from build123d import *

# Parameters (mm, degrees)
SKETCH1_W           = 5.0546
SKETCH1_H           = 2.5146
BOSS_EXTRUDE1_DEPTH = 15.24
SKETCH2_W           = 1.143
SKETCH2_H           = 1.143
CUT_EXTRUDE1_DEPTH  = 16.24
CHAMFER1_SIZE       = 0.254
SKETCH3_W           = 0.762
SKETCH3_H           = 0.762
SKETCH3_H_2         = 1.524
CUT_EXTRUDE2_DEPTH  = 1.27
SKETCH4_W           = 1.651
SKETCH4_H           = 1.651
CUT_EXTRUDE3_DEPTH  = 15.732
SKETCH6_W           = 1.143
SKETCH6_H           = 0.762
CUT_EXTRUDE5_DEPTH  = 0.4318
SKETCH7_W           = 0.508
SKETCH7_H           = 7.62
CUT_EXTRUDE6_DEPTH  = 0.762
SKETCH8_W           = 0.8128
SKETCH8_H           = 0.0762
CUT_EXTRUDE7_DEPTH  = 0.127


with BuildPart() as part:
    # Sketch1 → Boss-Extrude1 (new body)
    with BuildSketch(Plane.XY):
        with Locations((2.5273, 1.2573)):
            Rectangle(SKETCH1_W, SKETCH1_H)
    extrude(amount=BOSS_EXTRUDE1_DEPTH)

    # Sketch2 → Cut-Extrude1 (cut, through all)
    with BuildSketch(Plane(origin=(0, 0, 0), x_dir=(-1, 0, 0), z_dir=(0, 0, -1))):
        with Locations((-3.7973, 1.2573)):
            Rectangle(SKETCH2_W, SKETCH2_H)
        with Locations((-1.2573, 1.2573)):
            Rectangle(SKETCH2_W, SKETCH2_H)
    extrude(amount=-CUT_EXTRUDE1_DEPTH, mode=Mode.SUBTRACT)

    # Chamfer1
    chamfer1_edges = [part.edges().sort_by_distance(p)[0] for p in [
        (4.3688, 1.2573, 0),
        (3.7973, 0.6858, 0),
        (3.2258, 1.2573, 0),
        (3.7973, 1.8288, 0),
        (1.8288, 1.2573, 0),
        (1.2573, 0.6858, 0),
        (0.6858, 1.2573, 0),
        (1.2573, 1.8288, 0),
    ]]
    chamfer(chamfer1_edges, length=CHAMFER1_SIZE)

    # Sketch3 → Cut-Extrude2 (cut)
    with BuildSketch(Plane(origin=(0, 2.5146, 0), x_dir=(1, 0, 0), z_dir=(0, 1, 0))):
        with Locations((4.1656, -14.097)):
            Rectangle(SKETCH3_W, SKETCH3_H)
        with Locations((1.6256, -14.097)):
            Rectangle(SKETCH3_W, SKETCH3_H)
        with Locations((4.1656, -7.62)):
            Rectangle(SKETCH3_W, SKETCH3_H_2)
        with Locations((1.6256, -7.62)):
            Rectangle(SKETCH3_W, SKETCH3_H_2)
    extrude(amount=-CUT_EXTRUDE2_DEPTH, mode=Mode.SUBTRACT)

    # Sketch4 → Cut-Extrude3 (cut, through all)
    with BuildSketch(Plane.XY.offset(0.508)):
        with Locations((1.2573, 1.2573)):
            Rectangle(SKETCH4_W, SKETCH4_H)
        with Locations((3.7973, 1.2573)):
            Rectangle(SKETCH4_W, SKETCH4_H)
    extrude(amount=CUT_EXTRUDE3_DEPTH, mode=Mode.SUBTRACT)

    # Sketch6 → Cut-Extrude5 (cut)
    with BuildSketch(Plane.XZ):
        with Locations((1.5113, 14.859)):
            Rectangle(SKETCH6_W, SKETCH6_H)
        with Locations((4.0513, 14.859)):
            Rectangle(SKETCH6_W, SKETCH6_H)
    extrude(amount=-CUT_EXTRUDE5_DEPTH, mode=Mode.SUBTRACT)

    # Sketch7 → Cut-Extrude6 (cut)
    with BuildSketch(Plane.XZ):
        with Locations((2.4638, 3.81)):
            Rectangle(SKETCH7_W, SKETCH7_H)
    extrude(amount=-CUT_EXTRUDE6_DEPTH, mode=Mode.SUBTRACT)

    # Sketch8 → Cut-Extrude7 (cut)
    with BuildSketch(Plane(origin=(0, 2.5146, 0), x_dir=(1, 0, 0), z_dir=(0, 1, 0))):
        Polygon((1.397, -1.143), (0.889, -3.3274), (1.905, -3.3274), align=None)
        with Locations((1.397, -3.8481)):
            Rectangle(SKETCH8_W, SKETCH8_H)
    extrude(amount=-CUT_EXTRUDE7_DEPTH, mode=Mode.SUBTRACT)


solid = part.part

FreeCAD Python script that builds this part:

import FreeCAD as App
import Part
import Sketcher

V = App.Vector
Q = App.Units.Quantity


def edges_at(feature, points):
    """Names of the edges that pass closest to the given points."""
    edges = feature.Shape.Edges
    near = lambda p: min(range(len(edges)), key=lambda i: edges[i].distToShape(Part.Vertex(*p))[0])
    return sorted({f"Edge{near(p) + 1}" for p in points})

doc = App.newDocument("Part")
params = doc.addObject("Spreadsheet::Sheet", "Params")
for row, (alias, value) in enumerate([
    ("sketch1_width", "0.199 in"),
    ("sketch1_height", "0.099 in"),
    ("pad1_length", "0.6 in"),
    ("sketch2_width", "0.045 in"),
    ("chamfer_size", "0.01 in"),
    ("sketch3_width", "0.03 in"),
    ("sketch3_height", "0.06 in"),
    ("pocket2_length", "0.05 in"),
    ("sketch4_width", "0.065 in"),
    ("sketch5_height", "0.03 in"),
    ("sketch5_width", "0.045 in"),
    ("pocket4_length", "0.017 in"),
    ("sketch6_height", "0.3 in"),
    ("sketch6_width", "0.02 in"),
    ("pocket5_length", "0.03 in"),
    ("sketch7_width", "0.04 in"),
    ("sketch7_width2", "0.032 in"),
    ("sketch7_height", "0.003 in"),
    ("pocket6_length", "0.005 in"),
], start=1):
    params.set(f"A{row}", alias)
    params.set(f"B{row}", "=" + value)
    params.setAlias(f"B{row}", alias)

body = doc.addObject("PartDesign::Body", "Body")

sketch1 = body.newObject("Sketcher::SketchObject", "Sketch")
sketch1.AttachmentSupport = (doc.getObject("XY_Plane"), [""])
sketch1.MapMode = "FlatFace"
sketch1.addGeometry([
    Part.LineSegment(V(0, 2.5, 0), V(0, 0, 0)),
    Part.LineSegment(V(0, 0, 0), V(5.1, 0, 0)),
    Part.LineSegment(V(5.1, 0, 0), V(5.1, 2.5, 0)),
    Part.LineSegment(V(5.1, 2.5, 0), V(0, 2.5, 0)),
], False)
sketch1.addConstraint([
    Sketcher.Constraint("Coincident", 0, 2, 1, 1),
    Sketcher.Constraint("Coincident", 1, 2, 2, 1),
    Sketcher.Constraint("Coincident", 2, 2, 3, 1),
    Sketcher.Constraint("Coincident", 3, 2, 0, 1),
    Sketcher.Constraint("Vertical", 0),
    Sketcher.Constraint("Horizontal", 1),
    Sketcher.Constraint("Vertical", 2),
    Sketcher.Constraint("Horizontal", 3),
    Sketcher.Constraint("Coincident", 0, 2, -1, 1),
    Sketcher.Constraint("DistanceX", 1, 1, 1, 2, Q("0.199 in")),
    Sketcher.Constraint("DistanceY", 0, 2, 0, 1, Q("0.099 in")),
])
sketch1.setExpression("Constraints[9]", "Params.sketch1_width")
sketch1.setExpression("Constraints[10]", "Params.sketch1_height")
pad1 = body.newObject("PartDesign::Pad", "Pad")
pad1.Profile = sketch1
pad1.setExpression("Length", "Params.pad1_length")

sketch2 = body.newObject("Sketcher::SketchObject", "Sketch001")
sketch2.AttachmentSupport = (doc.getObject("XY_Plane"), [""])
sketch2.MapMode = "FlatFace"
sketch2.addGeometry([
    Part.LineSegment(V(4.4, 1.8, 0), V(4.4, 0.7, 0)),
    Part.LineSegment(V(4.4, 0.7, 0), V(3.2, 0.7, 0)),
    Part.LineSegment(V(3.2, 0.7, 0), V(3.2, 1.8, 0)),
    Part.LineSegment(V(3.2, 1.8, 0), V(4.4, 1.8, 0)),
    Part.LineSegment(V(1.8, 1.8, 0), V(1.8, 0.7, 0)),
    Part.LineSegment(V(1.8, 0.7, 0), V(0.7, 0.7, 0)),
    Part.LineSegment(V(0.7, 0.7, 0), V(0.7, 1.8, 0)),
    Part.LineSegment(V(0.7, 1.8, 0), V(1.8, 1.8, 0)),
], False)
sketch2.addConstraint([
    Sketcher.Constraint("Coincident", 0, 2, 1, 1),
    Sketcher.Constraint("Coincident", 1, 2, 2, 1),
    Sketcher.Constraint("Coincident", 2, 2, 3, 1),
    Sketcher.Constraint("Coincident", 3, 2, 0, 1),
    Sketcher.Constraint("Coincident", 4, 2, 5, 1),
    Sketcher.Constraint("Coincident", 5, 2, 6, 1),
    Sketcher.Constraint("Coincident", 6, 2, 7, 1),
    Sketcher.Constraint("Coincident", 7, 2, 4, 1),
    Sketcher.Constraint("Vertical", 0),
    Sketcher.Constraint("Horizontal", 1),
    Sketcher.Constraint("Vertical", 2),
    Sketcher.Constraint("Horizontal", 3),
    Sketcher.Constraint("Vertical", 4),
    Sketcher.Constraint("Horizontal", 5),
    Sketcher.Constraint("Vertical", 6),
    Sketcher.Constraint("Horizontal", 7),
    Sketcher.Constraint("Horizontal", 1, 2, 4, 2),
    Sketcher.Constraint("Horizontal", 3, 2, 6, 2),
    Sketcher.Constraint("Equal", 3, 5),
    Sketcher.Constraint("Equal", 7, 0),
    Sketcher.Constraint("DistanceX", 4, 2, 0, 2, Q("0.1 in")),
    Sketcher.Constraint("DistanceX", 1, 2, 1, 1, Q("0.045 in")),
    Sketcher.Constraint("DistanceX", -1, 1, 0, 2, Q("0.172 in")),
    Sketcher.Constraint("DistanceY", -1, 1, 0, 2, Q("0.027 in")),
])
sketch2.setExpression("Constraints[21]", "Params.sketch2_width")
pocket1 = body.newObject("PartDesign::Pocket", "Pocket")
pocket1.Profile = sketch2
pocket1.Type = "ThroughAll"
pocket1.Reversed = True
doc.recompute()

chamfer = body.newObject("PartDesign::Chamfer", "Chamfer")
chamfer.Base = (pocket1, edges_at(pocket1, [
    (4.369, 1.257, 0),
    (3.797, 0.686, 0),
    (3.226, 1.257, 0),
    (3.797, 1.829, 0),
    (1.829, 1.257, 0),
    (1.257, 0.686, 0),
    (0.686, 1.257, 0),
    (1.257, 1.829, 0),
]))
chamfer.setExpression("Size", "Params.chamfer_size")

sketch3 = body.newObject("Sketcher::SketchObject", "Sketch002")
sketch3.AttachmentSupport = (doc.getObject("XZ_Plane"), [""])
sketch3.MapMode = "FlatFace"
sketch3.AttachmentOffset = App.Placement(V(0, 0, -0.099 * 25.4), App.Rotation())
sketch3.addGeometry([
    Part.LineSegment(V(3.8, 13.7, 0), V(3.8, 14.5, 0)),
    Part.LineSegment(V(3.8, 14.5, 0), V(4.5, 14.5, 0)),
    Part.LineSegment(V(4.5, 14.5, 0), V(4.5, 13.7, 0)),
    Part.LineSegment(V(4.5, 13.7, 0), V(3.8, 13.7, 0)),
    Part.LineSegment(V(1.2, 13.7, 0), V(1.2, 14.5, 0)),
    Part.LineSegment(V(1.2, 14.5, 0), V(2, 14.5, 0)),
    Part.LineSegment(V(2, 14.5, 0), V(2, 13.7, 0)),
    Part.LineSegment(V(2, 13.7, 0), V(1.2, 13.7, 0)),
    Part.LineSegment(V(3.8, 6.9, 0), V(3.8, 8.4, 0)),
    Part.LineSegment(V(3.8, 8.4, 0), V(4.5, 8.4, 0)),
    Part.LineSegment(V(4.5, 8.4, 0), V(4.5, 6.9, 0)),
    Part.LineSegment(V(4.5, 6.9, 0), V(3.8, 6.9, 0)),
    Part.LineSegment(V(1.2, 6.9, 0), V(1.2, 8.4, 0)),
    Part.LineSegment(V(1.2, 8.4, 0), V(2, 8.4, 0)),
    Part.LineSegment(V(2, 8.4, 0), V(2, 6.9, 0)),
    Part.LineSegment(V(2, 6.9, 0), V(1.2, 6.9, 0)),
], False)
sketch3.addConstraint([
    Sketcher.Constraint("Coincident", 0, 2, 1, 1),
    Sketcher.Constraint("Coincident", 1, 2, 2, 1),
    Sketcher.Constraint("Coincident", 2, 2, 3, 1),
    Sketcher.Constraint("Coincident", 3, 2, 0, 1),
    Sketcher.Constraint("Coincident", 4, 2, 5, 1),
    Sketcher.Constraint("Coincident", 5, 2, 6, 1),
    Sketcher.Constraint("Coincident", 6, 2, 7, 1),
    Sketcher.Constraint("Coincident", 7, 2, 4, 1),
    Sketcher.Constraint("Coincident", 8, 2, 9, 1),
    Sketcher.Constraint("Coincident", 9, 2, 10, 1),
    Sketcher.Constraint("Coincident", 10, 2, 11, 1),
    Sketcher.Constraint("Coincident", 11, 2, 8, 1),
    Sketcher.Constraint("Coincident", 12, 2, 13, 1),
    Sketcher.Constraint("Coincident", 13, 2, 14, 1),
    Sketcher.Constraint("Coincident", 14, 2, 15, 1),
    Sketcher.Constraint("Coincident", 15, 2, 12, 1),
    Sketcher.Constraint("Vertical", 0),
    Sketcher.Constraint("Horizontal", 1),
    Sketcher.Constraint("Vertical", 2),
    Sketcher.Constraint("Horizontal", 3),
    Sketcher.Constraint("Vertical", 4),
    Sketcher.Constraint("Horizontal", 5),
    Sketcher.Constraint("Vertical", 6),
    Sketcher.Constraint("Horizontal", 7),
    Sketcher.Constraint("Vertical", 8),
    Sketcher.Constraint("Horizontal", 9),
    Sketcher.Constraint("Vertical", 10),
    Sketcher.Constraint("Horizontal", 11),
    Sketcher.Constraint("Vertical", 12),
    Sketcher.Constraint("Horizontal", 13),
    Sketcher.Constraint("Vertical", 14),
    Sketcher.Constraint("Horizontal", 15),
    Sketcher.Constraint("Horizontal", 1, 2, 4, 2),
    Sketcher.Constraint("Horizontal", 3, 2, 6, 2),
    Sketcher.Constraint("Horizontal", 9, 2, 12, 2),
    Sketcher.Constraint("Horizontal", 11, 2, 14, 2),
    Sketcher.Constraint("Vertical", 3, 2, 8, 2),
    Sketcher.Constraint("Vertical", 2, 2, 9, 2),
    Sketcher.Constraint("Vertical", 7, 2, 12, 2),
    Sketcher.Constraint("Vertical", 6, 2, 13, 2),
    Sketcher.Constraint("Equal", 3, 5),
    Sketcher.Constraint("Equal", 15, 0),
    Sketcher.Constraint("DistanceX", 1, 1, 1, 2, Q("0.03 in")),
    Sketcher.Constraint("DistanceY", 8, 1, 8, 2, Q("0.06 in")),
    Sketcher.Constraint("DistanceX", 4, 2, 0, 2, Q("0.1 in")),
    Sketcher.Constraint("DistanceY", -1, 1, 0, 2, Q("0.57 in")),
    Sketcher.Constraint("DistanceY", -1, 1, 8, 2, Q("0.33 in")),
    Sketcher.Constraint("DistanceX", -1, 1, 0, 2, Q("0.149 in")),
])
sketch3.setExpression("Constraints[42]", "Params.sketch3_width")
sketch3.setExpression("Constraints[43]", "Params.sketch3_height")
pocket2 = body.newObject("PartDesign::Pocket", "Pocket001")
pocket2.Profile = sketch3
pocket2.setExpression("Length", "Params.pocket2_length")
pocket2.Reversed = True

sketch4 = body.newObject("Sketcher::SketchObject", "Sketch003")
sketch4.AttachmentSupport = (doc.getObject("XY_Plane"), [""])
sketch4.MapMode = "FlatFace"
sketch4.AttachmentOffset = App.Placement(V(0, 0, 0.02 * 25.4), App.Rotation())
sketch4.addGeometry([
    Part.LineSegment(V(0.4, 2.1, 0), V(0.4, 0.4, 0)),
    Part.LineSegment(V(0.4, 0.4, 0), V(2.1, 0.4, 0)),
    Part.LineSegment(V(2.1, 0.4, 0), V(2.1, 2.1, 0)),
    Part.LineSegment(V(2.1, 2.1, 0), V(0.4, 2.1, 0)),
    Part.LineSegment(V(3, 2.1, 0), V(3, 0.4, 0)),
    Part.LineSegment(V(3, 0.4, 0), V(4.6, 0.4, 0)),
    Part.LineSegment(V(4.6, 0.4, 0), V(4.6, 2.1, 0)),
    Part.LineSegment(V(4.6, 2.1, 0), V(3, 2.1, 0)),
], False)
sketch4.addConstraint([
    Sketcher.Constraint("Coincident", 0, 2, 1, 1),
    Sketcher.Constraint("Coincident", 1, 2, 2, 1),
    Sketcher.Constraint("Coincident", 2, 2, 3, 1),
    Sketcher.Constraint("Coincident", 3, 2, 0, 1),
    Sketcher.Constraint("Coincident", 4, 2, 5, 1),
    Sketcher.Constraint("Coincident", 5, 2, 6, 1),
    Sketcher.Constraint("Coincident", 6, 2, 7, 1),
    Sketcher.Constraint("Coincident", 7, 2, 4, 1),
    Sketcher.Constraint("Vertical", 0),
    Sketcher.Constraint("Horizontal", 1),
    Sketcher.Constraint("Vertical", 2),
    Sketcher.Constraint("Horizontal", 3),
    Sketcher.Constraint("Vertical", 4),
    Sketcher.Constraint("Horizontal", 5),
    Sketcher.Constraint("Vertical", 6),
    Sketcher.Constraint("Horizontal", 7),
    Sketcher.Constraint("Horizontal", 1, 2, 4, 2),
    Sketcher.Constraint("Horizontal", 3, 2, 6, 2),
    Sketcher.Constraint("Equal", 3, 5),
    Sketcher.Constraint("Equal", 7, 0),
    Sketcher.Constraint("DistanceX", 0, 2, 4, 2, Q("0.1 in")),
    Sketcher.Constraint("DistanceX", 1, 1, 1, 2, Q("0.065 in")),
    Sketcher.Constraint("DistanceX", -1, 1, 0, 2, Q("0.017 in")),
    Sketcher.Constraint("DistanceY", -1, 1, 0, 2, Q("0.017 in")),
])
sketch4.setExpression("Constraints[21]", "Params.sketch4_width")
pocket3 = body.newObject("PartDesign::Pocket", "Pocket002")
pocket3.Profile = sketch4
pocket3.Type = "ThroughAll"
pocket3.Reversed = True

sketch5 = body.newObject("Sketcher::SketchObject", "Sketch004")
sketch5.AttachmentSupport = (doc.getObject("XZ_Plane"), [""])
sketch5.MapMode = "FlatFace"
sketch5.addGeometry([
    Part.LineSegment(V(0.9, 15.2, 0), V(0.9, 14.5, 0)),
    Part.LineSegment(V(0.9, 14.5, 0), V(2.1, 14.5, 0)),
    Part.LineSegment(V(2.1, 14.5, 0), V(2.1, 15.2, 0)),
    Part.LineSegment(V(2.1, 15.2, 0), V(0.9, 15.2, 0)),
    Part.LineSegment(V(3.5, 15.2, 0), V(3.5, 14.5, 0)),
    Part.LineSegment(V(3.5, 14.5, 0), V(4.6, 14.5, 0)),
    Part.LineSegment(V(4.6, 14.5, 0), V(4.6, 15.2, 0)),
    Part.LineSegment(V(4.6, 15.2, 0), V(3.5, 15.2, 0)),
], False)
sketch5.addConstraint([
    Sketcher.Constraint("Coincident", 0, 2, 1, 1),
    Sketcher.Constraint("Coincident", 1, 2, 2, 1),
    Sketcher.Constraint("Coincident", 2, 2, 3, 1),
    Sketcher.Constraint("Coincident", 3, 2, 0, 1),
    Sketcher.Constraint("Coincident", 4, 2, 5, 1),
    Sketcher.Constraint("Coincident", 5, 2, 6, 1),
    Sketcher.Constraint("Coincident", 6, 2, 7, 1),
    Sketcher.Constraint("Coincident", 7, 2, 4, 1),
    Sketcher.Constraint("Vertical", 0),
    Sketcher.Constraint("Horizontal", 1),
    Sketcher.Constraint("Vertical", 2),
    Sketcher.Constraint("Horizontal", 3),
    Sketcher.Constraint("Vertical", 4),
    Sketcher.Constraint("Horizontal", 5),
    Sketcher.Constraint("Vertical", 6),
    Sketcher.Constraint("Horizontal", 7),
    Sketcher.Constraint("Horizontal", 1, 2, 4, 2),
    Sketcher.Constraint("Horizontal", 3, 2, 6, 2),
    Sketcher.Constraint("Equal", 3, 5),
    Sketcher.Constraint("DistanceY", 0, 2, 0, 1, Q("0.03 in")),
    Sketcher.Constraint("DistanceY", -1, 1, 2, 2, Q("0.6 in")),
    Sketcher.Constraint("DistanceX", 0, 2, 4, 2, Q("0.1 in")),
    Sketcher.Constraint("DistanceX", 1, 1, 1, 2, Q("0.045 in")),
    Sketcher.Constraint("DistanceX", -1, 1, 0, 2, Q("0.037 in")),
])
sketch5.setExpression("Constraints[19]", "Params.sketch5_height")
sketch5.setExpression("Constraints[22]", "Params.sketch5_width")
pocket4 = body.newObject("PartDesign::Pocket", "Pocket003")
pocket4.Profile = sketch5
pocket4.setExpression("Length", "Params.pocket4_length")

sketch6 = body.newObject("Sketcher::SketchObject", "Sketch005")
sketch6.AttachmentSupport = (doc.getObject("XZ_Plane"), [""])
sketch6.MapMode = "FlatFace"
sketch6.addGeometry([
    Part.LineSegment(V(2.2, 7.6, 0), V(2.2, 0, 0)),
    Part.LineSegment(V(2.2, 0, 0), V(2.7, 0, 0)),
    Part.LineSegment(V(2.7, 0, 0), V(2.7, 7.6, 0)),
    Part.LineSegment(V(2.7, 7.6, 0), V(2.2, 7.6, 0)),
], False)
sketch6.addConstraint([
    Sketcher.Constraint("Coincident", 0, 2, 1, 1),
    Sketcher.Constraint("Coincident", 1, 2, 2, 1),
    Sketcher.Constraint("Coincident", 2, 2, 3, 1),
    Sketcher.Constraint("Coincident", 3, 2, 0, 1),
    Sketcher.Constraint("Vertical", 0),
    Sketcher.Constraint("Horizontal", 1),
    Sketcher.Constraint("Vertical", 2),
    Sketcher.Constraint("Horizontal", 3),
    Sketcher.Constraint("PointOnObject", 0, 2, -1),
    Sketcher.Constraint("DistanceY", 0, 2, 0, 1, Q("0.3 in")),
    Sketcher.Constraint("DistanceX", 1, 1, 1, 2, Q("0.02 in")),
    Sketcher.Constraint("DistanceX", -1, 1, 0, 2, Q("0.087 in")),
])
sketch6.setExpression("Constraints[9]", "Params.sketch6_height")
sketch6.setExpression("Constraints[10]", "Params.sketch6_width")
pocket5 = body.newObject("PartDesign::Pocket", "Pocket004")
pocket5.Profile = sketch6
pocket5.setExpression("Length", "Params.pocket5_length")

sketch7 = body.newObject("Sketcher::SketchObject", "Sketch006")
sketch7.AttachmentSupport = (doc.getObject("XZ_Plane"), [""])
sketch7.MapMode = "FlatFace"
sketch7.AttachmentOffset = App.Placement(V(0, 0, -0.099 * 25.4), App.Rotation())
sketch7.addGeometry([
    Part.LineSegment(V(1.4, 1.14, 0), V(0.89, 3.33, 0)),
    Part.LineSegment(V(0.89, 3.33, 0), V(1.91, 3.33, 0)),
    Part.LineSegment(V(1.91, 3.33, 0), V(1.4, 1.14, 0)),
    Part.LineSegment(V(0.99, 3.81, 0), V(0.99, 3.89, 0)),
    Part.LineSegment(V(0.99, 3.89, 0), V(1.8, 3.89, 0)),
    Part.LineSegment(V(1.8, 3.89, 0), V(1.8, 3.81, 0)),
    Part.LineSegment(V(1.8, 3.81, 0), V(0.99, 3.81, 0)),
], False)
sketch7.addConstraint([
    Sketcher.Constraint("Coincident", 0, 2, 1, 1),
    Sketcher.Constraint("Coincident", 1, 2, 2, 1),
    Sketcher.Constraint("Coincident", 2, 2, 0, 1),
    Sketcher.Constraint("Coincident", 3, 2, 4, 1),
    Sketcher.Constraint("Coincident", 4, 2, 5, 1),
    Sketcher.Constraint("Coincident", 5, 2, 6, 1),
    Sketcher.Constraint("Coincident", 6, 2, 3, 1),
    Sketcher.Constraint("Horizontal", 1),
    Sketcher.Constraint("Vertical", 3),
    Sketcher.Constraint("Horizontal", 4),
    Sketcher.Constraint("Vertical", 5),
    Sketcher.Constraint("Horizontal", 6),
    Sketcher.Constraint("Equal", 0, 2),
    Sketcher.Constraint("DistanceX", 1, 1, 1, 2, Q("0.04 in")),
    Sketcher.Constraint("DistanceX", 4, 1, 4, 2, Q("0.032 in")),
    Sketcher.Constraint("DistanceY", 3, 1, 3, 2, Q("0.003 in")),
    Sketcher.Constraint("DistanceY", -1, 1, 5, 2, Q("0.15 in")),
    Sketcher.Constraint("DistanceX", -1, 1, 0, 2, Q("0.035 in")),
    Sketcher.Constraint("DistanceY", -1, 1, 0, 2, Q("0.131 in")),
    Sketcher.Constraint("DistanceY", -1, 1, 2, 2, Q("0.045 in")),
    Sketcher.Constraint("DistanceX", -1, 1, 3, 2, Q("0.039 in")),
])
sketch7.setExpression("Constraints[13]", "Params.sketch7_width")
sketch7.setExpression("Constraints[14]", "Params.sketch7_width2")
sketch7.setExpression("Constraints[15]", "Params.sketch7_height")
pocket6 = body.newObject("PartDesign::Pocket", "Pocket005")
pocket6.Profile = sketch7
pocket6.setExpression("Length", "Params.pocket6_length")
pocket6.Reversed = True

doc.recompute()
